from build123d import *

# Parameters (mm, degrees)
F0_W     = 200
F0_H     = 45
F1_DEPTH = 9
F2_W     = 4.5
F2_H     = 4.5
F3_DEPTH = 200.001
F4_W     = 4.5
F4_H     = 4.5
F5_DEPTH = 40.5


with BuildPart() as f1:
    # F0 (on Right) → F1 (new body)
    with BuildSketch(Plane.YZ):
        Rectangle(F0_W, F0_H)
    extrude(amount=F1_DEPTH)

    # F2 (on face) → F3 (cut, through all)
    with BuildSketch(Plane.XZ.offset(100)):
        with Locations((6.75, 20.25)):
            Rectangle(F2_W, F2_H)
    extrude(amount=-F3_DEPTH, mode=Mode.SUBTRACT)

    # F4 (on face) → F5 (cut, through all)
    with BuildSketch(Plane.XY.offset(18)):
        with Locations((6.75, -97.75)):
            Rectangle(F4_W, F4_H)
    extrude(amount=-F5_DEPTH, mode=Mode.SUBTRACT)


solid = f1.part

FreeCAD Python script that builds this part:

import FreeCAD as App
import Part
import Sketcher
from FreeCAD import Vector
Q = App.Units.Quantity

doc = App.newDocument("Part")
params = doc.addObject("Spreadsheet::Sheet", "Params")
for row, (alias, value) in enumerate([
    ("sketch1_width", "200 mm"),
    ("sketch1_height", "45 mm"),
    ("pad1_length", "9 mm"),
    ("sketch2_width", "4.5 mm"),
    ("sketch3_width", "4.5 mm"),
], start=1):
    params.set(f"A{row}", alias)
    params.set(f"B{row}", "=" + value)
    params.setAlias(f"B{row}", alias)

body = doc.addObject("PartDesign::Body", "Body")

# Sketch on YZ plane
sketch1 = body.newObject("Sketcher::SketchObject", "Sketch")
sketch1.AttachmentSupport = (doc.getObject("YZ_Plane"), [""])
sketch1.MapMode = "FlatFace"
sketch1.addGeometry([
    Part.LineSegment(Vector(-100, 22, 0), Vector(-100, -22, 0)),
    Part.LineSegment(Vector(-100, -22, 0), Vector(100, -22, 0)),
    Part.LineSegment(Vector(100, -22, 0), Vector(100, 22, 0)),
    Part.LineSegment(Vector(100, 22, 0), Vector(-100, 22, 0)),
], False)
sketch1.addConstraint([
    Sketcher.Constraint("Coincident", 0, 2, 1, 1),
    Sketcher.Constraint("Coincident", 1, 2, 2, 1),
    Sketcher.Constraint("Coincident", 2, 2, 3, 1),
    Sketcher.Constraint("Coincident", 3, 2, 0, 1),
    Sketcher.Constraint("Vertical", 0),
    Sketcher.Constraint("Horizontal", 1),
    Sketcher.Constraint("Vertical", 2),
    Sketcher.Constraint("Horizontal", 3),
    Sketcher.Constraint("Symmetric", 0, 2, 2, 2, -1, 1),
    Sketcher.Constraint("DistanceX", 1, 1, 1, 2, Q("200 mm")),
    Sketcher.Constraint("DistanceY", 0, 2, 0, 1, Q("45 mm")),
])
sketch1.setExpression("Constraints[9]", "Params.sketch1_width")
sketch1.setExpression("Constraints[10]", "Params.sketch1_height")
pad1 = body.newObject("PartDesign::Pad", "Pad")
pad1.Profile = sketch1
pad1.setExpression("Length", "Params.pad1_length")

# Sketch on XZ plane
sketch2 = body.newObject("Sketcher::SketchObject", "Sketch001")
sketch2.AttachmentSupport = (doc.getObject("XZ_Plane"), [""])
sketch2.MapMode = "FlatFace"
sketch2.AttachmentOffset = App.Placement(Vector(0, 0, 100), App.Rotation())
sketch2.addGeometry([
    Part.LineSegment(Vector(4.5, 22.5, 0), Vector(4.5, 18, 0)),
    Part.LineSegment(Vector(4.5, 18, 0), Vector(9, 18, 0)),
    Part.LineSegment(Vector(9, 18, 0), Vector(9, 22.5, 0)),
    Part.LineSegment(Vector(9, 22.5, 0), Vector(4.5, 22.5, 0)),
], False)
sketch2.addConstraint([
    Sketcher.Constraint("Coincident", 0, 2, 1, 1),
    Sketcher.Constraint("Coincident", 1, 2, 2, 1),
    Sketcher.Constraint("Coincident", 2, 2, 3, 1),
    Sketcher.Constraint("Coincident", 3, 2, 0, 1),
    Sketcher.Constraint("Vertical", 0),
    Sketcher.Constraint("Horizontal", 1),
    Sketcher.Constraint("Vertical", 2),
    Sketcher.Constraint("Horizontal", 3),
    Sketcher.Constraint("Equal", 3, 0),
    Sketcher.Constraint("DistanceX", 1, 1, 1, 2, Q("4.5 mm")),
    Sketcher.Constraint("DistanceY", -1, 1, 0, 2, Q("18 mm")),
    Sketcher.Constraint("DistanceX", -1, 1, 1, 2, Q("9 mm")),
])
sketch2.setExpression("Constraints[9]", "Params.sketch2_width")
pocket1 = body.newObject("PartDesign::Pocket", "Pocket")
pocket1.Profile = sketch2
pocket1.Type = "ThroughAll"

# Sketch on XY plane
sketch3 = body.newObject("Sketcher::SketchObject", "Sketch002")
sketch3.AttachmentSupport = (doc.getObject("XY_Plane"), [""])
sketch3.MapMode = "FlatFace"
sketch3.AttachmentOffset = App.Placement(Vector(0, 0, 18), App.Rotation())
sketch3.addGeometry([
    Part.LineSegment(Vector(4.5, -95.5, 0), Vector(4.5, -100, 0)),
    Part.LineSegment(Vector(4.5, -100, 0), Vector(9, -100, 0)),
    Part.LineSegment(Vector(9, -100, 0), Vector(9, -95.5, 0)),
    Part.LineSegment(Vector(9, -95.5, 0), Vector(4.5, -95.5, 0)),
], False)
sketch3.addConstraint([
    Sketcher.Constraint("Coincident", 0, 2, 1, 1),
    Sketcher.Constraint("Coincident", 1, 2, 2, 1),
    Sketcher.Constraint("Coincident", 2, 2, 3, 1),
    Sketcher.Constraint("Coincident", 3, 2, 0, 1),
    Sketcher.Constraint("Vertical", 0),
    Sketcher.Constraint("Horizontal", 1),
    Sketcher.Constraint("Vertical", 2),
    Sketcher.Constraint("Horizontal", 3),
    Sketcher.Constraint("Equal", 3, 0),
    Sketcher.Constraint("DistanceX", 1, 1, 1, 2, Q("4.5 mm")),
    Sketcher.Constraint("DistanceY", 0, 2, -1, 1, Q("100 mm")),
    Sketcher.Constraint("DistanceX", -1, 1, 1, 2, Q("9 mm")),
])
sketch3.setExpression("Constraints[9]", "Params.sketch3_width")
pocket2 = body.newObject("PartDesign::Pocket", "Pocket001")
pocket2.Profile = sketch3
pocket2.Type = "ThroughAll"

doc.recompute()
